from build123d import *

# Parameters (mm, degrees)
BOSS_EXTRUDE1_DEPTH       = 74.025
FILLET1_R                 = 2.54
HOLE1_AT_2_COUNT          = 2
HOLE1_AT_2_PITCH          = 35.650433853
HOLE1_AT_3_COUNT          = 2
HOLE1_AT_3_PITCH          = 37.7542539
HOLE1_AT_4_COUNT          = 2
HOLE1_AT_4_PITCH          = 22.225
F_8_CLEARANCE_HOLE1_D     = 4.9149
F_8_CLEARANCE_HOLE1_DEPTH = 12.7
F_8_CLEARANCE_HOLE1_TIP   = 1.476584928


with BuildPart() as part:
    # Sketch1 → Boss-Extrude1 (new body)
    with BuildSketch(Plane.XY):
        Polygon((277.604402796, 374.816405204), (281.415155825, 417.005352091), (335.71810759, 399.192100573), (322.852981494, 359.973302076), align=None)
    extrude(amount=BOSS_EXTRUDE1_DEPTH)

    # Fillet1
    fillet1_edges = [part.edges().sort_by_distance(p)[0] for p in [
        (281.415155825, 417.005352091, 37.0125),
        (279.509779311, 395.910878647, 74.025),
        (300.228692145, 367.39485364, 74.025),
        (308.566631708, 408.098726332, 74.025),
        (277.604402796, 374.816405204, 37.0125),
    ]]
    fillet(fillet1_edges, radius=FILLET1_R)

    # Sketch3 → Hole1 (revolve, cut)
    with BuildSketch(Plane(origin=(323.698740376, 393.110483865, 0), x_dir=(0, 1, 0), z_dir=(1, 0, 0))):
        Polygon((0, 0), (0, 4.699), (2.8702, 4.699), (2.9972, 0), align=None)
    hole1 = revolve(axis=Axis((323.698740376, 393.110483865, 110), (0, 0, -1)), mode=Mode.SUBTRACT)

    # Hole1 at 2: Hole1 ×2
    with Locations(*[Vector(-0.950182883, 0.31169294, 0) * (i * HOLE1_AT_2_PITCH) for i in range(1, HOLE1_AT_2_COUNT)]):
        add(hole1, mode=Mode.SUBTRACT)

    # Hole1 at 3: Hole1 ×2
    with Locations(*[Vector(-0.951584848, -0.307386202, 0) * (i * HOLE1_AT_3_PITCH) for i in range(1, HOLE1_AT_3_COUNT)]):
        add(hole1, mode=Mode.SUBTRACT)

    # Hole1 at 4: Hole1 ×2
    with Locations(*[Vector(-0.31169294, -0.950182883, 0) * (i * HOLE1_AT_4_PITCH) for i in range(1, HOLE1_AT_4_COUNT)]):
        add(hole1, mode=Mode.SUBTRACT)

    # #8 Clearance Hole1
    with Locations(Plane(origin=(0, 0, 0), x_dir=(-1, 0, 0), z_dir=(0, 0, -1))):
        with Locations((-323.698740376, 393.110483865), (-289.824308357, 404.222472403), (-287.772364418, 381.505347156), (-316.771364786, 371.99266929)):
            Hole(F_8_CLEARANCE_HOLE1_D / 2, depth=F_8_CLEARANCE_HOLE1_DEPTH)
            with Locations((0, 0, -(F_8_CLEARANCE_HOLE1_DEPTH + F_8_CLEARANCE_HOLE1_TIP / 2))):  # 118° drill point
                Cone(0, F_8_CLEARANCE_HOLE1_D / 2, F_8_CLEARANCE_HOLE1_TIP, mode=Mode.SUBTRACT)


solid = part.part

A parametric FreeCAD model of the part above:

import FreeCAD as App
import Part
import Sketcher
from FreeCAD import Vector
Q = App.Units.Quantity


def edges_at(feature, points):
    """Names of the edges that pass closest to the given points."""
    edges = feature.Shape.Edges
    near = lambda p: min(range(len(edges)), key=lambda i: edges[i].distToShape(Part.Vertex(*p))[0])
    return sorted({f"Edge{near(p) + 1}" for p in points})


def add_polygon(sketch, points):
    """Adds a closed chain of lines whose ends are joined by coincident constraints."""
    first, n = sketch.GeometryCount, len(points)
    for a, b in zip(points, points[1:] + points[:1]):
        sketch.addGeometry(Part.LineSegment(App.Vector(*a, 0), App.Vector(*b, 0)), False)
    for i in range(n):
        sketch.addConstraint(Sketcher.Constraint("Coincident", first + i, 2, first + (i + 1) % n, 1))

doc = App.newDocument("Part")
body = doc.addObject("PartDesign::Body", "Body")

# Sketch on XY plane
sketch1 = doc.addObject("Sketcher::SketchObject", "Sketch")
body.addObject(sketch1)
sketch1.AttachmentSupport = (doc.XY_Plane, [""])
sketch1.MapMode = "FlatFace"
add_polygon(sketch1, [(281, 417), (278, 375), (323, 360), (336, 399)])  # lines 0-3
sketch1.addConstraint(Sketcher.Constraint("Perpendicular", 1, 2))
sketch1.addConstraint(Sketcher.Constraint("Perpendicular", 2, 3))
sketch1.addConstraint(Sketcher.Constraint("Distance", 3, Q("2.25 in")))
sketch1.addConstraint(Sketcher.Constraint("Distance", 2, Q("1.625 in")))
sketch1.addConstraint(Sketcher.Constraint("DistanceY", -1, 1, 2, 2, Q("399.192101 mm")))
sketch1.addConstraint(Sketcher.Constraint("DistanceY", 1, 2, 2, 2, Q("39.218798 mm")))
sketch1.addConstraint(Sketcher.Constraint("DistanceX", -1, 1, 1, 2, Q("322.852981 mm")))
sketch1.addConstraint(Sketcher.Constraint("DistanceX", 0, 2, 1, 2, Q("45.248579 mm")))
pad1 = doc.addObject("PartDesign::Pad", "Pad")
body.addObject(pad1)
pad1.Profile = sketch1
pad1.Length = 74.025
doc.recompute()

fillet = doc.addObject("PartDesign::Fillet", "Fillet")
body.addObject(fillet)
fillet.Base = (pad1, edges_at(pad1, [
    (281.415, 417.005, 37.013),
    (279.51, 395.911, 74.025),
    (300.229, 367.395, 74.025),
    (308.567, 408.099, 74.025),
    (277.604, 374.816, 37.013),
]))
fillet.Radius = Q("0.1 in")

# Sketch on YZ plane
sketch2 = doc.addObject("Sketcher::SketchObject", "Sketch001")
body.addObject(sketch2)
sketch2.AttachmentSupport = (doc.YZ_Plane, [""])
sketch2.MapMode = "FlatFace"
sketch2.AttachmentOffset = App.Placement(Vector(0, 0, 323.69874), App.Rotation())
add_polygon(sketch2, [(393.1, 4.7), (393.1, 0), (396.1, 0), (396, 4.7)])  # lines 0-3
sketch2.addGeometry(Part.LineSegment(Vector(393.1, 4.7, 0), Vector(393.1, 0, 0)), True)  # axis
sketch2.addConstraint(Sketcher.Constraint("Vertical", 0))
sketch2.addConstraint(Sketcher.Constraint("Horizontal", 1))
sketch2.addConstraint(Sketcher.Constraint("Horizontal", 3))
sketch2.addConstraint(Sketcher.Constraint("Vertical", 4))
sketch2.addConstraint(Sketcher.Constraint("Coincident", 4, 1, 3, 2))
sketch2.addConstraint(Sketcher.Constraint("PointOnObject", 0, 2, -1))
sketch2.addConstraint(Sketcher.Constraint("PointOnObject", 4, 2, -1))
sketch2.addConstraint(Sketcher.Constraint("DistanceX", 1, 1, 1, 2, Q("0.118 in")))
sketch2.addConstraint(Sketcher.Constraint("DistanceX", 3, 2, 3, 1, Q("0.113 in")))
sketch2.addConstraint(Sketcher.Constraint("DistanceY", 0, 2, 0, 1, Q("0.185 in")))
sketch2.addConstraint(Sketcher.Constraint("DistanceX", -1, 1, 0, 2, Q("393.110484 mm")))
groove = doc.addObject("PartDesign::Groove", "Groove")
body.addObject(groove)
groove.Profile = sketch2
groove.ReferenceAxis = (sketch2, ["Axis0"])
groove.Angle = 360
doc.recompute()

datumline = doc.addObject("PartDesign::Line", "DatumLine")
body.addObject(datumline)
datumline.Placement = App.Placement(Vector(0, 0, 0), App.Rotation(Vector(0, 0, 1), Vector(-0.950182883, 0.31169294, 0)))
linearpattern = doc.addObject("PartDesign::LinearPattern", "LinearPattern")
body.addObject(linearpattern)
linearpattern.Originals = [groove]
linearpattern.Direction = (datumline, [""])
linearpattern.Mode = "offset"
linearpattern.Offset = 35.650434
linearpattern.Occurrences = 2
body.Tip = linearpattern
doc.recompute()

datumline2 = doc.addObject("PartDesign::Line", "DatumLine001")
body.addObject(datumline2)
datumline2.Placement = App.Placement(Vector(0, 0, 0), App.Rotation(Vector(0, 0, 1), Vector(-0.951584848, -0.307386202, 0)))
linearpattern2 = doc.addObject("PartDesign::LinearPattern", "LinearPattern001")
body.addObject(linearpattern2)
linearpattern2.Originals = [groove]
linearpattern2.Direction = (datumline2, [""])
linearpattern2.Mode = "offset"
linearpattern2.Offset = 37.754254
linearpattern2.Occurrences = 2
body.Tip = linearpattern2
doc.recompute()

datumline3 = doc.addObject("PartDesign::Line", "DatumLine002")
body.addObject(datumline3)
datumline3.Placement = App.Placement(Vector(0, 0, 0), App.Rotation(Vector(0, 0, 1), Vector(-0.31169294, -0.950182883, 0)))
linearpattern3 = doc.addObject("PartDesign::LinearPattern", "LinearPattern002")
body.addObject(linearpattern3)
linearpattern3.Originals = [groove]
linearpattern3.Direction = (datumline3, [""])
linearpattern3.Mode = "offset"
linearpattern3.Offset = Q("0.875 in")
linearpattern3.Occurrences = 2
body.Tip = linearpattern3

# Sketch on XY plane
sketch3 = doc.addObject("Sketcher::SketchObject", "Sketch002")
body.addObject(sketch3)
sketch3.AttachmentSupport = (doc.XY_Plane, [""])
sketch3.MapMode = "FlatFace"
sketch3.addGeometry(Part.Circle(Vector(323.7, 393.1, 0), Vector(0, 0, 1), 2.5), False)
sketch3.addGeometry(Part.Circle(Vector(289.8, 404.2, 0), Vector(0, 0, 1), 2.5), False)
sketch3.addGeometry(Part.Circle(Vector(287.8, 381.5, 0), Vector(0, 0, 1), 2.5), False)
sketch3.addGeometry(Part.Circle(Vector(316.8, 372, 0), Vector(0, 0, 1), 2.5), False)
sketch3.addConstraint(Sketcher.Constraint("Equal", 0, 1))
sketch3.addConstraint(Sketcher.Constraint("Equal", 1, 2))
sketch3.addConstraint(Sketcher.Constraint("Equal", 2, 3))
sketch3.addConstraint(Sketcher.Constraint("Diameter", 0, Q("0.1935 in")))
sketch3.addConstraint(Sketcher.Constraint("DistanceX", 2, 3, 3, 3, Q("28.999 mm")))
sketch3.addConstraint(Sketcher.Constraint("DistanceX", -1, 1, 0, 3, Q("323.69874 mm")))
sketch3.addConstraint(Sketcher.Constraint("DistanceX", -1, 1, 1, 3, Q("289.824308 mm")))
sketch3.addConstraint(Sketcher.Constraint("DistanceY", -1, 1, 3, 3, Q("371.992669 mm")))
sketch3.addConstraint(Sketcher.Constraint("DistanceY", 0, 3, 1, 3, Q("11.111989 mm")))
sketch3.addConstraint(Sketcher.Constraint("DistanceY", -1, 1, 0, 3, Q("393.110484 mm")))
sketch3.addConstraint(Sketcher.Constraint("DistanceX", -1, 1, 2, 3, Q("287.772364 mm")))
sketch3.addConstraint(Sketcher.Constraint("DistanceY", -1, 1, 2, 3, Q("381.505347 mm")))
doc.recompute()
hole = doc.addObject("PartDesign::Hole", "Hole")
body.addObject(hole)
hole.Profile = sketch3
hole.ThreadType = "None"
hole.Diameter = Q("0.1935 in")
hole.DepthType = "Dimension"
hole.Depth = Q("0.5 in")
hole.DrillPoint = "Angled"
hole.DrillPointAngle = 118
hole.Reversed = True

doc.recompute()
